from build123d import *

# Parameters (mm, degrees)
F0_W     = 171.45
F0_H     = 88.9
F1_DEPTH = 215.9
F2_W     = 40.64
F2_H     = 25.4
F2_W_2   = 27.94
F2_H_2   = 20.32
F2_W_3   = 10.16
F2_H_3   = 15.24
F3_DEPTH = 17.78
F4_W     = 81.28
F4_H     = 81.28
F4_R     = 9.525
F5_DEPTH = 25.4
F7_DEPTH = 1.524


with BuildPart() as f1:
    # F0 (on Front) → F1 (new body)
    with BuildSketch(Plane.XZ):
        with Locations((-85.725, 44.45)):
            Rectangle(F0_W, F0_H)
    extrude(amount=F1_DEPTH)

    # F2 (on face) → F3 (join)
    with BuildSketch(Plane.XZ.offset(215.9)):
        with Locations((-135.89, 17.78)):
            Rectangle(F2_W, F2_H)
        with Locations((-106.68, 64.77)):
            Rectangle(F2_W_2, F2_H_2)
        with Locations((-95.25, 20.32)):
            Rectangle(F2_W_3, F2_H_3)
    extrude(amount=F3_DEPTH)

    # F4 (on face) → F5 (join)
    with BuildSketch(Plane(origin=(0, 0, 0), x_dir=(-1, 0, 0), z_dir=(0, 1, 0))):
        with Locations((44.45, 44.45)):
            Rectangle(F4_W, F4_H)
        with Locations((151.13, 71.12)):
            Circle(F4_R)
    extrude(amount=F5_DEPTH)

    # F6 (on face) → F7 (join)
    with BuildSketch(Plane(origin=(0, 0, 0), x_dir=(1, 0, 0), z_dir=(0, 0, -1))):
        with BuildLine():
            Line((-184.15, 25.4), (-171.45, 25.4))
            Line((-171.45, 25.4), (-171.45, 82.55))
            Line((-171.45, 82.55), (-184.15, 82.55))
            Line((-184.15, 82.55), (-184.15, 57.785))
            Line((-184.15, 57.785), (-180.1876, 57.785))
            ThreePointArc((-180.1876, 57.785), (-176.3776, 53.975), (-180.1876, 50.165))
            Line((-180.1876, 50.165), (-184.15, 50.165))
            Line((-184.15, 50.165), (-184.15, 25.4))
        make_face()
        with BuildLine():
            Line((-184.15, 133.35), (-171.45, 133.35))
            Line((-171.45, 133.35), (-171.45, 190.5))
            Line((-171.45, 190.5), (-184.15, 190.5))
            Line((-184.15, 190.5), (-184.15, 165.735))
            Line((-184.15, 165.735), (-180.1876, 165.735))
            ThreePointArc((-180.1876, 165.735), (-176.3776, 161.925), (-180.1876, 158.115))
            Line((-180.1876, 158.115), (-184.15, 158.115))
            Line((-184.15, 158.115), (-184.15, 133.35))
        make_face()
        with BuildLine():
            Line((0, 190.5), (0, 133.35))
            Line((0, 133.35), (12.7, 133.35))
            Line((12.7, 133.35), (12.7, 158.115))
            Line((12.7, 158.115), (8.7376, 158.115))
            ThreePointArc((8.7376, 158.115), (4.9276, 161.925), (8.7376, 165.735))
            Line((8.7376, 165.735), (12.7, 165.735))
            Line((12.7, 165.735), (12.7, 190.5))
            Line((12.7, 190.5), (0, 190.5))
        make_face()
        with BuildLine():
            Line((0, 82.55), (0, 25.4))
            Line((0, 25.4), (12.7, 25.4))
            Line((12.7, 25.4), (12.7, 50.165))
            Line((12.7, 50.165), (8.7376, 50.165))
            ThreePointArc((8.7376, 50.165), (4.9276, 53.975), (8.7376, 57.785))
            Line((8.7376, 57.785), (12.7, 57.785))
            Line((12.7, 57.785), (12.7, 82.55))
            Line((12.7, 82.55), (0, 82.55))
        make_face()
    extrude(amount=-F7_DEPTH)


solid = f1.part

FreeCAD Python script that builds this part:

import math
import FreeCAD as App
import Part
import Sketcher

V = App.Vector
Q = App.Units.Quantity

doc = App.newDocument("Part")
body = doc.addObject("PartDesign::Body", "Body")

# Sketch on XZ plane
sketch1 = doc.addObject("Sketcher::SketchObject", "Sketch")
body.addObject(sketch1)
sketch1.AttachmentSupport = (doc.XZ_Plane, [""])
sketch1.MapMode = "FlatFace"
sketch1.addGeometry([
    Part.LineSegment(V(-171.45, 88.9, 0), V(-171.45, 0, 0)),
    Part.LineSegment(V(-171.45, 0, 0), V(0, 0, 0)),
    Part.LineSegment(V(0, 0, 0), V(0, 88.9, 0)),
    Part.LineSegment(V(0, 88.9, 0), V(-171.45, 88.9, 0)),
], False)
sketch1.addConstraint([
    Sketcher.Constraint("Coincident", 0, 2, 1, 1),
    Sketcher.Constraint("Coincident", 1, 2, 2, 1),
    Sketcher.Constraint("Coincident", 2, 2, 3, 1),
    Sketcher.Constraint("Coincident", 3, 2, 0, 1),
    Sketcher.Constraint("Vertical", 0),
    Sketcher.Constraint("Horizontal", 1),
    Sketcher.Constraint("Vertical", 2),
    Sketcher.Constraint("Horizontal", 3),
    Sketcher.Constraint("Coincident", 1, 2, -1, 1),
    Sketcher.Constraint("DistanceY", 0, 2, 0, 1, Q("3.5 in")),
    Sketcher.Constraint("DistanceX", 1, 1, 1, 2, Q("6.75 in")),
])
pad1 = doc.addObject("PartDesign::Pad", "Pad")
body.addObject(pad1)
pad1.Profile = sketch1
pad1.Length = Q("8.5 in")

# Sketch on XZ plane
sketch2 = doc.addObject("Sketcher::SketchObject", "Sketch001")
body.addObject(sketch2)
sketch2.AttachmentSupport = (doc.XZ_Plane, [""])
sketch2.MapMode = "FlatFace"
sketch2.AttachmentOffset = App.Placement(V(0, 0, 8.5 * 25.4), App.Rotation())
sketch2.addGeometry([
    Part.LineSegment(V(-156.21, 30.48, 0), V(-156.21, 5.08, 0)),  # 0
    Part.LineSegment(V(-156.21, 5.08, 0), V(-115.57, 5.08, 0)),  # 1
    Part.LineSegment(V(-115.57, 5.08, 0), V(-115.57, 30.48, 0)),  # 2
    Part.LineSegment(V(-115.57, 30.48, 0), V(-156.21, 30.48, 0)),  # 3
    Part.LineSegment(V(-120.65, 74.93, 0), V(-120.65, 54.61, 0)),  # 4
    Part.LineSegment(V(-120.65, 54.61, 0), V(-92.71, 54.61, 0)),  # 5
    Part.LineSegment(V(-92.71, 54.61, 0), V(-92.71, 74.93, 0)),  # 6
    Part.LineSegment(V(-92.71, 74.93, 0), V(-120.65, 74.93, 0)),  # 7
    Part.LineSegment(V(-100.33, 27.94, 0), V(-100.33, 12.7, 0)),  # 8
    Part.LineSegment(V(-100.33, 12.7, 0), V(-90.17, 12.7, 0)),  # 9
    Part.LineSegment(V(-90.17, 12.7, 0), V(-90.17, 27.94, 0)),  # 10
    Part.LineSegment(V(-90.17, 27.94, 0), V(-100.33, 27.94, 0)),  # 11
], False)
sketch2.addConstraint([
    Sketcher.Constraint("Coincident", 0, 2, 1, 1),
    Sketcher.Constraint("Coincident", 1, 2, 2, 1),
    Sketcher.Constraint("Coincident", 2, 2, 3, 1),
    Sketcher.Constraint("Coincident", 3, 2, 0, 1),
    Sketcher.Constraint("Coincident", 4, 2, 5, 1),
    Sketcher.Constraint("Coincident", 5, 2, 6, 1),
    Sketcher.Constraint("Coincident", 6, 2, 7, 1),
    Sketcher.Constraint("Coincident", 7, 2, 4, 1),
    Sketcher.Constraint("Coincident", 8, 2, 9, 1),
    Sketcher.Constraint("Coincident", 9, 2, 10, 1),
    Sketcher.Constraint("Coincident", 10, 2, 11, 1),
    Sketcher.Constraint("Coincident", 11, 2, 8, 1),
    Sketcher.Constraint("Vertical", 0),
    Sketcher.Constraint("Horizontal", 1),
    Sketcher.Constraint("Vertical", 2),
    Sketcher.Constraint("Horizontal", 3),
    Sketcher.Constraint("Vertical", 4),
    Sketcher.Constraint("Horizontal", 5),
    Sketcher.Constraint("Vertical", 6),
    Sketcher.Constraint("Horizontal", 7),
    Sketcher.Constraint("Vertical", 8),
    Sketcher.Constraint("Horizontal", 9),
    Sketcher.Constraint("Vertical", 10),
    Sketcher.Constraint("Horizontal", 11),
    Sketcher.Constraint("DistanceY", 0, 2, 0, 1, Q("1 in")),
    Sketcher.Constraint("DistanceX", 1, 1, 1, 2, Q("1.6 in")),
    Sketcher.Constraint("DistanceX", 5, 1, 5, 2, Q("1.1 in")),
    Sketcher.Constraint("DistanceX", 9, 1, 9, 2, Q("0.4 in")),
    Sketcher.Constraint("DistanceY", 4, 2, 4, 1, Q("0.8 in")),
    Sketcher.Constraint("DistanceY", 8, 2, 8, 1, Q("0.6 in")),
    Sketcher.Constraint("DistanceX", 1, 2, 9, 2, Q("1 in")),
    Sketcher.Constraint("DistanceY", -1, 1, 0, 2, Q("0.2 in")),
    Sketcher.Constraint("DistanceY", -1, 1, 8, 2, Q("0.5 in")),
    Sketcher.Constraint("DistanceX", 4, 2, 2, 2, Q("0.2 in")),
    Sketcher.Constraint("DistanceX", 0, 2, -1, 1, Q("6.15 in")),
    Sketcher.Constraint("DistanceY", -1, 1, 4, 2, Q("2.15 in")),
])
pad2 = doc.addObject("PartDesign::Pad", "Pad001")
body.addObject(pad2)
pad2.Profile = sketch2
pad2.Length = Q("0.7 in")

# Sketch on XZ plane
sketch3 = doc.addObject("Sketcher::SketchObject", "Sketch002")
body.addObject(sketch3)
sketch3.AttachmentSupport = (doc.XZ_Plane, [""])
sketch3.MapMode = "FlatFace"
sketch3.addGeometry([
    Part.LineSegment(V(-3.81, 85.09, 0), V(-3.81, 3.81, 0)),  # 0
    Part.LineSegment(V(-3.81, 3.81, 0), V(-85.09, 3.81, 0)),  # 1
    Part.LineSegment(V(-85.09, 3.81, 0), V(-85.09, 85.09, 0)),  # 2
    Part.LineSegment(V(-85.09, 85.09, 0), V(-3.81, 85.09, 0)),  # 3
    Part.Circle(V(-151.13, 71.12, 0), V(0, 0, 1), 9.525),  # 4
], False)
sketch3.addConstraint([
    Sketcher.Constraint("Coincident", 0, 2, 1, 1),
    Sketcher.Constraint("Coincident", 1, 2, 2, 1),
    Sketcher.Constraint("Coincident", 2, 2, 3, 1),
    Sketcher.Constraint("Coincident", 3, 2, 0, 1),
    Sketcher.Constraint("Vertical", 0),
    Sketcher.Constraint("Horizontal", 1),
    Sketcher.Constraint("Vertical", 2),
    Sketcher.Constraint("Horizontal", 3),
    Sketcher.Constraint("Equal", 3, 0),
    Sketcher.Constraint("Diameter", 4, Q("0.75 in")),
    Sketcher.Constraint("DistanceX", 1, 2, 1, 1, Q("3.2 in")),
    Sketcher.Constraint("DistanceY", -1, 1, 4, 3, Q("2.8 in")),
    Sketcher.Constraint("DistanceX", 4, 3, 0, 2, Q("5.8 in")),
    Sketcher.Constraint("DistanceX", 4, 3, -1, 1, Q("5.95 in")),
    Sketcher.Constraint("DistanceY", -1, 1, 0, 2, Q("0.15 in")),
])
pad3 = doc.addObject("PartDesign::Pad", "Pad002")
body.addObject(pad3)
pad3.Profile = sketch3
pad3.Length = Q("1 in")
pad3.Reversed = True

# Sketch on XY plane
sketch4 = doc.addObject("Sketcher::SketchObject", "Sketch003")
body.addObject(sketch4)
sketch4.AttachmentSupport = (doc.XY_Plane, [""])
sketch4.MapMode = "FlatFace"
sketch4.addGeometry([
    Part.LineSegment(V(-184.15, -25.4, 0), V(-171.45, -25.4, 0)),  # 0
    Part.LineSegment(V(-171.45, -25.4, 0), V(-171.45, -82.55, 0)),  # 1
    Part.LineSegment(V(-171.45, -82.55, 0), V(-184.15, -82.55, 0)),  # 2
    Part.LineSegment(V(-184.15, -82.55, 0), V(-184.15, -57.785, 0)),  # 3
    Part.LineSegment(V(-184.15, -57.785, 0), V(-180.1876, -57.785, 0)),  # 4
    Part.ArcOfCircle(Part.Circle(V(-180.1876, -53.975, 0), V(0, 0, 1), 3.81), math.radians(-90), math.radians(90)),  # 5
    Part.LineSegment(V(-180.1876, -50.165, 0), V(-184.15, -50.165, 0)),  # 6
    Part.LineSegment(V(-184.15, -50.165, 0), V(-184.15, -25.4, 0)),  # 7
    Part.LineSegment(V(-184.15, -133.35, 0), V(-171.45, -133.35, 0)),  # 8
    Part.LineSegment(V(-171.45, -133.35, 0), V(-171.45, -190.5, 0)),  # 9
    Part.LineSegment(V(-171.45, -190.5, 0), V(-184.15, -190.5, 0)),  # 10
    Part.LineSegment(V(-184.15, -190.5, 0), V(-184.15, -165.735, 0)),  # 11
    Part.LineSegment(V(-184.15, -165.735, 0), V(-180.1876, -165.735, 0)),  # 12
    Part.ArcOfCircle(Part.Circle(V(-180.1876, -161.925, 0), V(0, 0, 1), 3.81), math.radians(-90), math.radians(90)),  # 13
    Part.LineSegment(V(-180.1876, -158.115, 0), V(-184.15, -158.115, 0)),  # 14
    Part.LineSegment(V(-184.15, -158.115, 0), V(-184.15, -133.35, 0)),  # 15
    Part.LineSegment(V(0, -190.5, 0), V(0, -133.35, 0)),  # 16
    Part.LineSegment(V(0, -133.35, 0), V(12.7, -133.35, 0)),  # 17
    Part.LineSegment(V(12.7, -133.35, 0), V(12.7, -158.115, 0)),  # 18
    Part.LineSegment(V(12.7, -158.115, 0), V(8.7376, -158.115, 0)),  # 19
    Part.ArcOfCircle(Part.Circle(V(8.7376, -161.925, 0), V(0, 0, 1), 3.81), math.radians(90), math.radians(270)),  # 20
    Part.LineSegment(V(8.7376, -165.735, 0), V(12.7, -165.735, 0)),  # 21
    Part.LineSegment(V(12.7, -165.735, 0), V(12.7, -190.5, 0)),  # 22
    Part.LineSegment(V(12.7, -190.5, 0), V(0, -190.5, 0)),  # 23
    Part.LineSegment(V(0, -82.55, 0), V(0, -25.4, 0)),  # 24
    Part.LineSegment(V(0, -25.4, 0), V(12.7, -25.4, 0)),  # 25
    Part.LineSegment(V(12.7, -25.4, 0), V(12.7, -50.165, 0)),  # 26
    Part.LineSegment(V(12.7, -50.165, 0), V(8.7376, -50.165, 0)),  # 27
    Part.ArcOfCircle(Part.Circle(V(8.7376, -53.975, 0), V(0, 0, 1), 3.81), math.radians(90), math.radians(270)),  # 28
    Part.LineSegment(V(8.7376, -57.785, 0), V(12.7, -57.785, 0)),  # 29
    Part.LineSegment(V(12.7, -57.785, 0), V(12.7, -82.55, 0)),  # 30
    Part.LineSegment(V(12.7, -82.55, 0), V(0, -82.55, 0)),  # 31
], False)
sketch4.addConstraint([
    Sketcher.Constraint("Coincident", 0, 2, 1, 1),
    Sketcher.Constraint("Coincident", 1, 2, 2, 1),
    Sketcher.Constraint("Coincident", 2, 2, 3, 1),
    Sketcher.Constraint("Coincident", 3, 2, 4, 1),
    Sketcher.Constraint("Tangent", 4, 2, 5, 1),
    Sketcher.Constraint("Tangent", 5, 2, 6, 1),
    Sketcher.Constraint("Coincident", 6, 2, 7, 1),
    Sketcher.Constraint("Coincident", 7, 2, 0, 1),
    Sketcher.Constraint("Coincident", 8, 2, 9, 1),
    Sketcher.Constraint("Coincident", 9, 2, 10, 1),
    Sketcher.Constraint("Coincident", 10, 2, 11, 1),
    Sketcher.Constraint("Coincident", 11, 2, 12, 1),
    Sketcher.Constraint("Tangent", 12, 2, 13, 1),
    Sketcher.Constraint("Tangent", 13, 2, 14, 1),
    Sketcher.Constraint("Coincident", 14, 2, 15, 1),
    Sketcher.Constraint("Coincident", 15, 2, 8, 1),
    Sketcher.Constraint("Coincident", 16, 2, 17, 1),
    Sketcher.Constraint("Coincident", 17, 2, 18, 1),
    Sketcher.Constraint("Coincident", 18, 2, 19, 1),
    Sketcher.Constraint("Tangent", 19, 2, 20, 1),
    Sketcher.Constraint("Tangent", 20, 2, 21, 1),
    Sketcher.Constraint("Coincident", 21, 2, 22, 1),
    Sketcher.Constraint("Coincident", 22, 2, 23, 1),
    Sketcher.Constraint("Coincident", 23, 2, 16, 1),
    Sketcher.Constraint("Coincident", 24, 2, 25, 1),
    Sketcher.Constraint("Coincident", 25, 2, 26, 1),
    Sketcher.Constraint("Coincident", 26, 2, 27, 1),
    Sketcher.Constraint("Tangent", 27, 2, 28, 1),
    Sketcher.Constraint("Tangent", 28, 2, 29, 1),
    Sketcher.Constraint("Coincident", 29, 2, 30, 1),
    Sketcher.Constraint("Coincident", 30, 2, 31, 1),
    Sketcher.Constraint("Coincident", 31, 2, 24, 1),
    Sketcher.Constraint("Horizontal", 0),
    Sketcher.Constraint("Vertical", 1),
    Sketcher.Constraint("Horizontal", 2),
    Sketcher.Constraint("Vertical", 3),
    Sketcher.Constraint("Horizontal", 4),
    Sketcher.Constraint("Horizontal", 6),
    Sketcher.Constraint("Vertical", 7),
    Sketcher.Constraint("Horizontal", 8),
    Sketcher.Constraint("Vertical", 9),
    Sketcher.Constraint("Horizontal", 10),
    Sketcher.Constraint("Vertical", 11),
    Sketcher.Constraint("Horizontal", 12),
    Sketcher.Constraint("Horizontal", 14),
    Sketcher.Constraint("Vertical", 15),
    Sketcher.Constraint("Vertical", 16),
    Sketcher.Constraint("Horizontal", 17),
    Sketcher.Constraint("Vertical", 18),
    Sketcher.Constraint("Horizontal", 19),
    Sketcher.Constraint("Horizontal", 21),
    Sketcher.Constraint("Vertical", 22),
    Sketcher.Constraint("Horizontal", 23),
    Sketcher.Constraint("Vertical", 24),
    Sketcher.Constraint("Horizontal", 25),
    Sketcher.Constraint("Vertical", 26),
    Sketcher.Constraint("Horizontal", 27),
    Sketcher.Constraint("Horizontal", 29),
    Sketcher.Constraint("Vertical", 30),
    Sketcher.Constraint("Horizontal", 31),
    Sketcher.Constraint("Equal", 5, 13),
    Sketcher.Constraint("Equal", 13, 20),
    Sketcher.Constraint("Equal", 20, 28),
    Sketcher.Constraint("PointOnObject", 16, 2, -2),
    Sketcher.Constraint("PointOnObject", 24, 2, -2),
    Sketcher.Constraint("Horizontal", 13, 3, 20, 3),
    Sketcher.Constraint("Horizontal", 5, 3, 28, 3),
    Sketcher.Constraint("Horizontal", 15, 2, 16, 2),
    Sketcher.Constraint("Horizontal", 10, 2, 22, 2),
    Sketcher.Constraint("Horizontal", 7, 2, 24, 2),
    Sketcher.Constraint("Horizontal", 2, 2, 30, 2),
    Sketcher.Constraint("Vertical", 5, 3, 13, 3),
    Sketcher.Constraint("Vertical", 20, 3, 28, 3),
    Sketcher.Constraint("Vertical", 3, 2, 6, 2),
    Sketcher.Constraint("Vertical", 1, 2, 8, 2),
    Sketcher.Constraint("Vertical", 7, 2, 10, 2),
    Sketcher.Constraint("Vertical", 11, 2, 14, 2),
    Sketcher.Constraint("Vertical", 18, 2, 21, 2),
    Sketcher.Constraint("Vertical", 22, 2, 25, 2),
    Sketcher.Constraint("Vertical", 26, 2, 29, 2),
    Sketcher.Constraint("Equal", 10, 17),
    Sketcher.Constraint("Equal", 14, 19),
    Sketcher.Constraint("Equal", 3, 7),
    Sketcher.Constraint("Equal", 1, 9),
    Sketcher.Constraint("Equal", 7, 11),
    Sketcher.Constraint("Radius", 5, Q("0.15 in")),
    Sketcher.Constraint("DistanceX", 0, 1, 0, 2, Q("0.5 in")),
    Sketcher.Constraint("DistanceY", 0, 2, -1, 1, Q("1 in")),
    Sketcher.Constraint("DistanceY", 8, 2, 1, 2, Q("2 in")),
    Sketcher.Constraint("DistanceY", 1, 2, 1, 1, Q("2.25 in")),
    Sketcher.Constraint("DistanceX", 4, 1, 4, 2, Q("0.156 in")),
    Sketcher.Constraint("DistanceX", 0, 2, -1, 1, Q("6.75 in")),
])
pad4 = doc.addObject("PartDesign::Pad", "Pad003")
body.addObject(pad4)
pad4.Profile = sketch4
pad4.Length = Q("0.06 in")

doc.recompute()
